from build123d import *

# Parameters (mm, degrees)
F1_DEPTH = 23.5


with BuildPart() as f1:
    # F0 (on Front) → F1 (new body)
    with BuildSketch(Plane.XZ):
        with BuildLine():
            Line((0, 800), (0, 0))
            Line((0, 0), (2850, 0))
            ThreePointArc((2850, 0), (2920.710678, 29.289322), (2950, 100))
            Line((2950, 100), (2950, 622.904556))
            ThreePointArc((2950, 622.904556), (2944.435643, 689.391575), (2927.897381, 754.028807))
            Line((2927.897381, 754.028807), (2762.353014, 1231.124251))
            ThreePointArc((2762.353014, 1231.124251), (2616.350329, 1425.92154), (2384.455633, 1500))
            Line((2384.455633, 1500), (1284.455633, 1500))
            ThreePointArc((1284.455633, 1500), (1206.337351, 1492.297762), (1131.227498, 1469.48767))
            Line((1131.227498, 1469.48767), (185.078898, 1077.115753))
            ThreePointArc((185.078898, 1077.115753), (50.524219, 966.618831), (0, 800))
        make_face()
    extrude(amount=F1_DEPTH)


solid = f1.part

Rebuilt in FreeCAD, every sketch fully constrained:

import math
import FreeCAD as App
import Part
import Sketcher
from FreeCAD import Vector

doc = App.newDocument("Part")
body = doc.addObject("PartDesign::Body", "Body")

# Sketch on XZ plane
sketch1 = body.newObject("Sketcher::SketchObject", "Sketch")
sketch1.AttachmentSupport = (doc.getObject("XZ_Plane"), [""])
sketch1.MapMode = "FlatFace"
sketch1.addGeometry([
    Part.LineSegment(Vector(0, 800, 0), Vector(0, 0, 0)),  # 0
    Part.LineSegment(Vector(0, 0, 0), Vector(2850, 0, 0)),  # 1
    Part.ArcOfCircle(Part.Circle(Vector(2850, 100, 0), Vector(0, 0, 1), 100), math.radians(-90), math.radians(0)),  # 2
    Part.LineSegment(Vector(2950, 100, 0), Vector(2950, 623, 0)),  # 3
    Part.ArcOfCircle(Part.Circle(Vector(2550, 623, 0), Vector(0, 0, 1), 400), math.radians(0), math.radians(19.14)),  # 4
    Part.LineSegment(Vector(2928, 754, 0), Vector(2762, 1231, 0)),  # 5
    Part.ArcOfCircle(Part.Circle(Vector(2384, 1100, 0), Vector(0, 0, 1), 400), math.radians(19), math.radians(90)),  # 6
    Part.LineSegment(Vector(2384, 1500, 0), Vector(1284, 1500, 0)),  # 7
    Part.ArcOfCircle(Part.Circle(Vector(1284, 1100, 0), Vector(0, 0, 1), 400), math.radians(90), math.radians(113)),  # 8
    Part.LineSegment(Vector(1131, 1469, 0), Vector(185, 1077, 0)),  # 9
    Part.ArcOfCircle(Part.Circle(Vector(300, 800, 0), Vector(0, 0, 1), 300), math.radians(113), math.radians(180)),  # 10
], False)
sketch1.addConstraint([
    Sketcher.Constraint("Coincident", 0, 2, 1, 1),
    Sketcher.Constraint("Tangent", 1, 2, 2, 1),
    Sketcher.Constraint("Tangent", 2, 2, 3, 1),
    Sketcher.Constraint("Tangent", 3, 2, 4, 1),
    Sketcher.Constraint("Tangent", 4, 2, 5, 1),
    Sketcher.Constraint("Tangent", 5, 2, 6, 1),
    Sketcher.Constraint("Tangent", 6, 2, 7, 1),
    Sketcher.Constraint("Tangent", 7, 2, 8, 1),
    Sketcher.Constraint("Tangent", 8, 2, 9, 1),
    Sketcher.Constraint("Tangent", 9, 2, 10, 1),
    Sketcher.Constraint("Tangent", 10, 2, 0, 1),
    Sketcher.Constraint("Vertical", 0),
    Sketcher.Constraint("Horizontal", 1),
    Sketcher.Constraint("Vertical", 3),
    Sketcher.Constraint("Horizontal", 7),
    Sketcher.Constraint("Coincident", 0, 2, -1, 1),
    Sketcher.Constraint("Radius", 2, 100.0),
    Sketcher.Constraint("Radius", 10, 300.0),
    Sketcher.Constraint("DistanceX", 1, 1, 1, 2, 2850.0),
    Sketcher.Constraint("DistanceX", 7, 2, 7, 1, 1100.0),
    Sketcher.Constraint("DistanceY", 0, 2, 0, 1, 800.0),
    Sketcher.Constraint("Distance", 5, 505.0),
    Sketcher.Constraint("DistanceY", -1, 1, 6, 2, 1500.0),
    Sketcher.Constraint("DistanceY", 2, 3, 6, 3, 1000.000002),
    Sketcher.Constraint("Radius", 4, 399.999975),
    Sketcher.Constraint("Radius", 8, 399.999985),
    Sketcher.Constraint("DistanceX", -1, 1, 9, 2, 185.078898),
])
pad1 = body.newObject("PartDesign::Pad", "Pad")
pad1.Profile = sketch1
pad1.Length = 23.5

doc.recompute()
